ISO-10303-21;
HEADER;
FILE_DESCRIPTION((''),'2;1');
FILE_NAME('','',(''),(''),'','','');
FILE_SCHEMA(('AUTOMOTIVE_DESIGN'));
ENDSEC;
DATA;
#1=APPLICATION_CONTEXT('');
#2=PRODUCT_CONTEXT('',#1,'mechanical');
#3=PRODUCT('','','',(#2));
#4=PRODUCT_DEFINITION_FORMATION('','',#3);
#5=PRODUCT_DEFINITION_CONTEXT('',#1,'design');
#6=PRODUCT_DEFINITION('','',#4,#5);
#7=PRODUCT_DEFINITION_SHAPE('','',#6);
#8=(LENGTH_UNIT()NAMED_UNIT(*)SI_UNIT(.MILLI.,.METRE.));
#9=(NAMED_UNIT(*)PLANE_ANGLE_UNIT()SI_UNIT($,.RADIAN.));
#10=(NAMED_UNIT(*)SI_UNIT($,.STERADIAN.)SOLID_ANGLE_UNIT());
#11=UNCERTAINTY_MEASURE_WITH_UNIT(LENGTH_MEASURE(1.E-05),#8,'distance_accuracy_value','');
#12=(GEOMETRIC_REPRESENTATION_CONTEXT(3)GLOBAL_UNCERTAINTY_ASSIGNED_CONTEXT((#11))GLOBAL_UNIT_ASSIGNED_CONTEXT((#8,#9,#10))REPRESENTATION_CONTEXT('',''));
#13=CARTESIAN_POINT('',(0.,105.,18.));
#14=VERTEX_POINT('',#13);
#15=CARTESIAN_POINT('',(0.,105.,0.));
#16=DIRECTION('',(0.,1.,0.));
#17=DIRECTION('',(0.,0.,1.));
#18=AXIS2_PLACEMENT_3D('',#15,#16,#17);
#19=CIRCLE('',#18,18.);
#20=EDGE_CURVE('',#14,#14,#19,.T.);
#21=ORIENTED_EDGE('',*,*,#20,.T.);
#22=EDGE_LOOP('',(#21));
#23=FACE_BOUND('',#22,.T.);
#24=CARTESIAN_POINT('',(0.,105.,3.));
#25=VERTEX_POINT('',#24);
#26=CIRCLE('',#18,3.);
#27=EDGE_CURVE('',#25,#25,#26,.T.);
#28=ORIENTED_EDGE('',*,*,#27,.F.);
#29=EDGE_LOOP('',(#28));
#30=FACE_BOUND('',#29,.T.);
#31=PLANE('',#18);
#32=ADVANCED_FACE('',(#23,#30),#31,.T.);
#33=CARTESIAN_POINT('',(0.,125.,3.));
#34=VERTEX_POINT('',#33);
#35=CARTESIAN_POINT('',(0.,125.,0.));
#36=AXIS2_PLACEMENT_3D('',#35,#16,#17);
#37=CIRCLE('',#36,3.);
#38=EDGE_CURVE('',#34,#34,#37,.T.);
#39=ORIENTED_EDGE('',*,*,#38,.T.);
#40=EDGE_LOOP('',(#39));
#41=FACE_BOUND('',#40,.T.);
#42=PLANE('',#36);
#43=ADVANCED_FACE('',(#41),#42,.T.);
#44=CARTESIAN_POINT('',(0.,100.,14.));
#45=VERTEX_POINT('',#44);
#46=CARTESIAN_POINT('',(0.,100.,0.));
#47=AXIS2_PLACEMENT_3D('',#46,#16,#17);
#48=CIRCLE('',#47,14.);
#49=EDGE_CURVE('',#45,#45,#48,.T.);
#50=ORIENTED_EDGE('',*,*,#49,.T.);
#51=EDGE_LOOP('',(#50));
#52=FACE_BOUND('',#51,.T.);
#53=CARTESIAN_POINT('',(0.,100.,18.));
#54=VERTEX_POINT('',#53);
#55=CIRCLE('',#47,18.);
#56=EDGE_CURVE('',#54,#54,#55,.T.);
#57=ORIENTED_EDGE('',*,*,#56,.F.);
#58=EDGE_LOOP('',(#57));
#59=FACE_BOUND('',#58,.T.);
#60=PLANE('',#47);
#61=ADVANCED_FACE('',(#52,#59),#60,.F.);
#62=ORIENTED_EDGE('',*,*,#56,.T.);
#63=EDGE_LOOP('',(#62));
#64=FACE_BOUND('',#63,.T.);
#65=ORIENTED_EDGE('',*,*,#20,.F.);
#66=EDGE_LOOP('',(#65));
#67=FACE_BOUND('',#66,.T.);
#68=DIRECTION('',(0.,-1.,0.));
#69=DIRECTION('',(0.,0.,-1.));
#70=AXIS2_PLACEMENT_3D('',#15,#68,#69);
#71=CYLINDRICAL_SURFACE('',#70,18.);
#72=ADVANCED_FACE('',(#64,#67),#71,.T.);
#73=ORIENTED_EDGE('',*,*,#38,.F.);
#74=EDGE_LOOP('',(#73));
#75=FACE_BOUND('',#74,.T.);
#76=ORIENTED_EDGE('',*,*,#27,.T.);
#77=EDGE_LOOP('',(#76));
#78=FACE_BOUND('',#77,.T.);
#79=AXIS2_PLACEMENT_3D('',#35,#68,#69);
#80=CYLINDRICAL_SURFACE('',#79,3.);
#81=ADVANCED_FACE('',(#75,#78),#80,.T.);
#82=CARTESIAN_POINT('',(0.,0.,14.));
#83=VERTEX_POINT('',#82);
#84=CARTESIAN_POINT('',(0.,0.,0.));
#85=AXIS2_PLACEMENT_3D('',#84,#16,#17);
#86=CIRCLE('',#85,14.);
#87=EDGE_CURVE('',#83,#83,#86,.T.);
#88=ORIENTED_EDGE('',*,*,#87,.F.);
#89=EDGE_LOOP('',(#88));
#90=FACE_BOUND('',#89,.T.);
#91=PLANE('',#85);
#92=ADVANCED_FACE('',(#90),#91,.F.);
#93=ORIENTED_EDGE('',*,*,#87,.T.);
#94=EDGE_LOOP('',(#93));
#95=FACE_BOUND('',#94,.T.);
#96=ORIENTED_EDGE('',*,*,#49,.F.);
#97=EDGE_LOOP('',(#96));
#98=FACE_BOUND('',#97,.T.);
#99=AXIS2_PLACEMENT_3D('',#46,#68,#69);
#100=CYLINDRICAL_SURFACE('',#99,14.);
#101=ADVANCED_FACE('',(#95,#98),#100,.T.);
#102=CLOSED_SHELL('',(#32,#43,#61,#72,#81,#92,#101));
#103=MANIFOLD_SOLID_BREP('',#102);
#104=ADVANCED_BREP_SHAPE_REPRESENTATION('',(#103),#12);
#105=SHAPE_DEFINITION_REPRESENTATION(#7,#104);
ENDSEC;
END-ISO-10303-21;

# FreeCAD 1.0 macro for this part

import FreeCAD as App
import Part
import Sketcher
Q = App.Units.Quantity

doc = App.newDocument("Part")
body = doc.addObject("PartDesign::Body", "Body")

sketch1 = body.newObject("Sketcher::SketchObject", "Sketch")
sketch1.AttachmentSupport = (doc.getObject("XZ_Plane"), [""])
sketch1.MapMode = "FlatFace"
sketch1.addGeometry(Part.Circle(App.Vector(0, 0, 0), App.Vector(0, 0, 1), 14), False)
sketch1.addConstraint([
    Sketcher.Constraint("Coincident", 0, 3, -1, 1),
    Sketcher.Constraint("Diameter", 0, Q("28 mm")),
])
pad1 = body.newObject("PartDesign::Pad", "Pad")
pad1.Profile = sketch1
pad1.Length = 100
pad1.Reversed = True

sketch2 = body.newObject("Sketcher::SketchObject", "Sketch001")
sketch2.AttachmentSupport = (doc.getObject("XZ_Plane"), [""])
sketch2.MapMode = "FlatFace"
sketch2.AttachmentOffset = App.Placement(App.Vector(0, 0, -100), App.Rotation())
sketch2.addGeometry(Part.Circle(App.Vector(0, 0, 0), App.Vector(0, 0, 1), 18), False)
sketch2.addConstraint([
    Sketcher.Constraint("Coincident", 0, 3, -1, 1),
    Sketcher.Constraint("Diameter", 0, Q("36 mm")),
])
pad2 = body.newObject("PartDesign::Pad", "Pad001")
pad2.Profile = sketch2
pad2.Length = 5
pad2.Reversed = True

sketch3 = body.newObject("Sketcher::SketchObject", "Sketch002")
sketch3.AttachmentSupport = (doc.getObject("XZ_Plane"), [""])
sketch3.MapMode = "FlatFace"
sketch3.AttachmentOffset = App.Placement(App.Vector(0, 0, -105), App.Rotation())
sketch3.addGeometry(Part.Circle(App.Vector(0, 0, 0), App.Vector(0, 0, 1), 3), False)
sketch3.addConstraint([
    Sketcher.Constraint("Coincident", 0, 3, -1, 1),
    Sketcher.Constraint("Diameter", 0, Q("6 mm")),
])
pad3 = body.newObject("PartDesign::Pad", "Pad002")
pad3.Profile = sketch3
pad3.Length = 20
pad3.Reversed = True

doc.recompute()
